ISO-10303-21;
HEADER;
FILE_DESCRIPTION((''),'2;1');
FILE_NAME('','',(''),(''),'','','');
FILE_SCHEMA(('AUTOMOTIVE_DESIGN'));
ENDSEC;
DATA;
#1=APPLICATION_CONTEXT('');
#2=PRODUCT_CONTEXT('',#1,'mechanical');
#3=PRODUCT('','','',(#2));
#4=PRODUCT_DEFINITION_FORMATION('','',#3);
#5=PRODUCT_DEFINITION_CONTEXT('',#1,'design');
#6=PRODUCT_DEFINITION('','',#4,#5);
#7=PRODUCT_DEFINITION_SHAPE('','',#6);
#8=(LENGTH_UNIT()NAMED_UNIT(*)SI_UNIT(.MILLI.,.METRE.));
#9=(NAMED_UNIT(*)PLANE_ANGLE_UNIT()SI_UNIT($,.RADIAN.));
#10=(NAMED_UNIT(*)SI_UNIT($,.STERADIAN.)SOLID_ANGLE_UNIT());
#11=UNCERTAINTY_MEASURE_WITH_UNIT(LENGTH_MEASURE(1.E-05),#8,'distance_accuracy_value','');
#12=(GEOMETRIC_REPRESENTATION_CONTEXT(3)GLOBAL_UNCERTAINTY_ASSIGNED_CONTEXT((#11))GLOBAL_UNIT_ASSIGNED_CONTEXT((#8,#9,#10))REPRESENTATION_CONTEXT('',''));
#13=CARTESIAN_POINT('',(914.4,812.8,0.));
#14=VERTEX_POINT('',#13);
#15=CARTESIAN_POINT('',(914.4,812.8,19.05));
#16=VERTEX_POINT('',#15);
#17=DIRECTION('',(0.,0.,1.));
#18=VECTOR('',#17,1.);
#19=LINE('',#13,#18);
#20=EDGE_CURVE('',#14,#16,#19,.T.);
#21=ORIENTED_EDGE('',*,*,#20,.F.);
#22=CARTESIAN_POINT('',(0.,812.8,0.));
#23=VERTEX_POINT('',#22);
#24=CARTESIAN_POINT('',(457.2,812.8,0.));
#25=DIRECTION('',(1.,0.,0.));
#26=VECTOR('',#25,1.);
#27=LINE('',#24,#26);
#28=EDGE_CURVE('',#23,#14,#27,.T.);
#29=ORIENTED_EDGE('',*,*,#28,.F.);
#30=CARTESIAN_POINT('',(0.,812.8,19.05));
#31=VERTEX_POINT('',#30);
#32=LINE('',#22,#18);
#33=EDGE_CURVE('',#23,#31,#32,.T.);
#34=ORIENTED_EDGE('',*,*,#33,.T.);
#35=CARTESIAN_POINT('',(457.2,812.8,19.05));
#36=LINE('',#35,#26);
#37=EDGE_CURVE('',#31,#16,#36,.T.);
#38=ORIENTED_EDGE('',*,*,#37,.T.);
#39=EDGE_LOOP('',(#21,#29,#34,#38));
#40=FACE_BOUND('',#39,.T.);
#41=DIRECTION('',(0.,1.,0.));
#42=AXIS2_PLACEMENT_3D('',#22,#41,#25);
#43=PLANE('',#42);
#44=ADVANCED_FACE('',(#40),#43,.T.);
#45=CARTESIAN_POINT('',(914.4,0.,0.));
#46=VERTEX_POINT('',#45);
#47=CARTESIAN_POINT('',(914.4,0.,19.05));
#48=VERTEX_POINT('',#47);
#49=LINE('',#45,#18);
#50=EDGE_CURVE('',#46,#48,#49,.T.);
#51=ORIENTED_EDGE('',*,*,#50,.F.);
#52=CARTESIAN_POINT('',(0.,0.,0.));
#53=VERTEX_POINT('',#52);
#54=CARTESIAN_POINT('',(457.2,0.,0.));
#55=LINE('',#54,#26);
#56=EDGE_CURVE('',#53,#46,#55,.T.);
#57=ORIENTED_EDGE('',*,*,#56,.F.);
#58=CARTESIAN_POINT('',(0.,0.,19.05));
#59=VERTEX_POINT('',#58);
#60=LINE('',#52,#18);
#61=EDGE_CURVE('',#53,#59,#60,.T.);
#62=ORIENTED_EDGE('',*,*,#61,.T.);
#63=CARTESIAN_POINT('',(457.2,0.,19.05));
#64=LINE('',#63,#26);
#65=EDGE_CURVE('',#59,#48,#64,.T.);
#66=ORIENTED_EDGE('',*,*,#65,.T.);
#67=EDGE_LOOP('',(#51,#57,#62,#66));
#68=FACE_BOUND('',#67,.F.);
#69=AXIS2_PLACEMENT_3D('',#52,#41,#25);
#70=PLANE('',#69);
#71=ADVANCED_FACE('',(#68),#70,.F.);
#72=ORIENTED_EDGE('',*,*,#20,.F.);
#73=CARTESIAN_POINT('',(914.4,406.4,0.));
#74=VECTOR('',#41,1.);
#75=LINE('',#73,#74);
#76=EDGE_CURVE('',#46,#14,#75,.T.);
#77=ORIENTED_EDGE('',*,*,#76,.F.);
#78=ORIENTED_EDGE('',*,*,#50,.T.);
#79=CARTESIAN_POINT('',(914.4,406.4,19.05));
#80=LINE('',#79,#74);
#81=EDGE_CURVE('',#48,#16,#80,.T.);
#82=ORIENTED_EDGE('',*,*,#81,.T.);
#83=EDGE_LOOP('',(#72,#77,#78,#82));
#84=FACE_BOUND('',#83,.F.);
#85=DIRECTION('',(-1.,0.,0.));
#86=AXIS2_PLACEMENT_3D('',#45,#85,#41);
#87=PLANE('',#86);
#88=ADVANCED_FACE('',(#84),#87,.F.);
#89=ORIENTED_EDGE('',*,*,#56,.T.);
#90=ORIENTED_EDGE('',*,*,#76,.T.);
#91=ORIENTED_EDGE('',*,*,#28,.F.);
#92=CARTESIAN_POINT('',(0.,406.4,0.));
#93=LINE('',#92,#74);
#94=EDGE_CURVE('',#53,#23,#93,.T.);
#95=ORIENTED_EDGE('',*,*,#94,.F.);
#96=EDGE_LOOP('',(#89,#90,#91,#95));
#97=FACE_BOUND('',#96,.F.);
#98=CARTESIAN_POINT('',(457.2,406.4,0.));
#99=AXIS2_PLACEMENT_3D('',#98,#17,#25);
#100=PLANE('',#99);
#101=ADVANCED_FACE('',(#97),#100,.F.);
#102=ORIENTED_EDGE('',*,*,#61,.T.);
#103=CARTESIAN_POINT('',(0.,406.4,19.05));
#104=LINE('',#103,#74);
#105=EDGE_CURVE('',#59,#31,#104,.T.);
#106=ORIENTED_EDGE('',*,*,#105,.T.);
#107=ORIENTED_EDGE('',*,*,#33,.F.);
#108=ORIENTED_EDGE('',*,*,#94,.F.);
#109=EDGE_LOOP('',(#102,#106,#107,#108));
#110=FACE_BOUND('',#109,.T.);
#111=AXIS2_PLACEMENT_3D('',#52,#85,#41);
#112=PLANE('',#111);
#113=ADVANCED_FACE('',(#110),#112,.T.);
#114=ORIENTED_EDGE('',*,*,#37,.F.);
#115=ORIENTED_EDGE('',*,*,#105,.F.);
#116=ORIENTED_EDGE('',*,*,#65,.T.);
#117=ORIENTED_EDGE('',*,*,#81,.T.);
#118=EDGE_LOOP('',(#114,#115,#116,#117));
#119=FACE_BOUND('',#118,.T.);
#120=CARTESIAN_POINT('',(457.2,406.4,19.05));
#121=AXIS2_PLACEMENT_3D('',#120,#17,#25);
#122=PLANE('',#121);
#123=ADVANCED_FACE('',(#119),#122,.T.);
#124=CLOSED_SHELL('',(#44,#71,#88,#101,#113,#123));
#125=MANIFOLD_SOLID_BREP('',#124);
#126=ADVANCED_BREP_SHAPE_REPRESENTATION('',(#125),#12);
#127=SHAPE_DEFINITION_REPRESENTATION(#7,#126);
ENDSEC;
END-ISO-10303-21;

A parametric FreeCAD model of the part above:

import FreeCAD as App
import Part
import Sketcher
Q = App.Units.Quantity

doc = App.newDocument("Part")
body = doc.addObject("PartDesign::Body", "Body")

# Sketch on XY plane
sketch1 = body.newObject("Sketcher::SketchObject", "Sketch")
sketch1.AttachmentSupport = (doc.getObject("XY_Plane"), [""])
sketch1.MapMode = "FlatFace"
sketch1.addGeometry([
    Part.LineSegment(App.Vector(0, 813, 0), App.Vector(0, 0, 0)),
    Part.LineSegment(App.Vector(0, 0, 0), App.Vector(914, 0, 0)),
    Part.LineSegment(App.Vector(914, 0, 0), App.Vector(914, 813, 0)),
    Part.LineSegment(App.Vector(914, 813, 0), App.Vector(0, 813, 0)),
], False)
sketch1.addConstraint([
    Sketcher.Constraint("Coincident", 0, 2, 1, 1),
    Sketcher.Constraint("Coincident", 1, 2, 2, 1),
    Sketcher.Constraint("Coincident", 2, 2, 3, 1),
    Sketcher.Constraint("Coincident", 3, 2, 0, 1),
    Sketcher.Constraint("Vertical", 0),
    Sketcher.Constraint("Horizontal", 1),
    Sketcher.Constraint("Vertical", 2),
    Sketcher.Constraint("Horizontal", 3),
    Sketcher.Constraint("Coincident", 0, 2, -1, 1),
    Sketcher.Constraint("DistanceX", 1, 1, 1, 2, Q("36 in")),
    Sketcher.Constraint("DistanceY", 0, 2, 0, 1, Q("32 in")),
])
pad1 = body.newObject("PartDesign::Pad", "Pad")
pad1.Profile = sketch1
pad1.Length = Q("0.75 in")

doc.recompute()
